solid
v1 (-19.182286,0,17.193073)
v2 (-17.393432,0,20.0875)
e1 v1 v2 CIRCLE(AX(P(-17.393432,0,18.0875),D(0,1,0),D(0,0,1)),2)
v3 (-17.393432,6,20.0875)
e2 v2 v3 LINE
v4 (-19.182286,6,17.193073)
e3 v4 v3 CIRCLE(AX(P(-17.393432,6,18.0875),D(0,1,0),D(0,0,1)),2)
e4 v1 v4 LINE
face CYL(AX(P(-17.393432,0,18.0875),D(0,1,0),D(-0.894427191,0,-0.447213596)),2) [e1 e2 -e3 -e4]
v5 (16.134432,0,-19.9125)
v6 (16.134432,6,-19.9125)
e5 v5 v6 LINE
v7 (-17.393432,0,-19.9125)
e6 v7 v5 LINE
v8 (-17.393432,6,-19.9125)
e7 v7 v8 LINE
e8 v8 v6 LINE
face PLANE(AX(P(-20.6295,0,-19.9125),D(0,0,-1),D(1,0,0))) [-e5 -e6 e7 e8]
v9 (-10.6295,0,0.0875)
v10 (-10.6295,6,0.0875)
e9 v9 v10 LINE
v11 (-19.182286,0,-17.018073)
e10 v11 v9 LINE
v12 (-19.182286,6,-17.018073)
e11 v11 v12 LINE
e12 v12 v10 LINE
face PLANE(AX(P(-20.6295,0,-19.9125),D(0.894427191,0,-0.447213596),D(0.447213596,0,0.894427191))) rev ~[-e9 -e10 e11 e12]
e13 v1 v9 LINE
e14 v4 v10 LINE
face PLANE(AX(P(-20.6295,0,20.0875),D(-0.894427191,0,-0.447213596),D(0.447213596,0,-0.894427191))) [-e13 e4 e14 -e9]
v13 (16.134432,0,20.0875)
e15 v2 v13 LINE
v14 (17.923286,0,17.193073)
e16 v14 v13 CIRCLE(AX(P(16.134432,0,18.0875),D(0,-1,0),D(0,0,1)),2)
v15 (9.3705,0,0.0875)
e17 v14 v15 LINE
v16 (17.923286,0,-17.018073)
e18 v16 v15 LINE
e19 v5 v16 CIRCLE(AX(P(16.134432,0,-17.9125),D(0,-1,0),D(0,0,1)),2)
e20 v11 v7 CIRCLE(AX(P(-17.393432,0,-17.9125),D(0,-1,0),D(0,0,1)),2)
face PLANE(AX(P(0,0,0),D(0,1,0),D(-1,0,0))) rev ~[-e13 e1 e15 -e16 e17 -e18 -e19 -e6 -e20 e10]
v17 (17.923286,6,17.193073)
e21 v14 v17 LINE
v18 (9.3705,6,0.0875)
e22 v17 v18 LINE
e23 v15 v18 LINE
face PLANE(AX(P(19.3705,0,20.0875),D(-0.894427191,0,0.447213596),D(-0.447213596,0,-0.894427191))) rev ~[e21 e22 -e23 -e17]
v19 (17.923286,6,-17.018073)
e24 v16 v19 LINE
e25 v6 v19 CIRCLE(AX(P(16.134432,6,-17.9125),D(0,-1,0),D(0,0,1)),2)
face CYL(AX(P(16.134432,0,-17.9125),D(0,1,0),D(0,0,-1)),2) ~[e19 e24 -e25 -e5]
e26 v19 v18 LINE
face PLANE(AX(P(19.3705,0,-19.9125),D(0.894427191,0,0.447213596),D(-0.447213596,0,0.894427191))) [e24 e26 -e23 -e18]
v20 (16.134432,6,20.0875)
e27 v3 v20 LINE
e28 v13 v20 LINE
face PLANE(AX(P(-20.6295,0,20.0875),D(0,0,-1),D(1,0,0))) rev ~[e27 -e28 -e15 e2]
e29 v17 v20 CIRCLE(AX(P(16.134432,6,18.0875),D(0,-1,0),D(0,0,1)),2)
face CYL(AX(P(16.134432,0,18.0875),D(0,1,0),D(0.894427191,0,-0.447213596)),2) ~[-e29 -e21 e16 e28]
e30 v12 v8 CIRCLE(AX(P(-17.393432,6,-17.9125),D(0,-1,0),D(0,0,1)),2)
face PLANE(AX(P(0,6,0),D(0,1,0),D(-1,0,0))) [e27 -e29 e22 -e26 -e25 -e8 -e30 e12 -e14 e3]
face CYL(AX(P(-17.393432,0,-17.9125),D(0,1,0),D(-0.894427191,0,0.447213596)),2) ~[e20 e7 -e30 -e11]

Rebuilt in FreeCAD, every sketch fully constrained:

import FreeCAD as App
import Part
import Sketcher
from FreeCAD import Vector


def edges_at(feature, points):
    """Names of the edges that pass closest to the given points."""
    edges = feature.Shape.Edges
    near = lambda p: min(range(len(edges)), key=lambda i: edges[i].distToShape(Part.Vertex(*p))[0])
    return sorted({f"Edge{near(p) + 1}" for p in points})

doc = App.newDocument("Part")
body = doc.addObject("PartDesign::Body", "Body")

sketch1 = body.newObject("Sketcher::SketchObject", "Sketch")
sketch1.AttachmentSupport = (doc.getObject("XZ_Plane"), [""])
sketch1.MapMode = "FlatFace"
sketch1.addGeometry(Part.LineSegment(Vector(-11, 0, 0), Vector(-21, 20, 0)), False)
sketch1.addGeometry(Part.LineSegment(Vector(-21, 20, 0), Vector(19, 20, 0)), False)
sketch1.addGeometry(Part.LineSegment(Vector(19, 20, 0), Vector(9, 0, 0)), False)
sketch1.addGeometry(Part.LineSegment(Vector(9, 0, 0), Vector(19, -20, 0)), False)
sketch1.addGeometry(Part.LineSegment(Vector(19, -20, 0), Vector(-21, -20, 0)), False)
sketch1.addGeometry(Part.LineSegment(Vector(-21, -20, 0), Vector(-11, 0, 0)), False)
sketch1.addConstraint(Sketcher.Constraint("Coincident", 0, 2, 1, 1))
sketch1.addConstraint(Sketcher.Constraint("Coincident", 1, 2, 2, 1))
sketch1.addConstraint(Sketcher.Constraint("Coincident", 2, 2, 3, 1))
sketch1.addConstraint(Sketcher.Constraint("Coincident", 3, 2, 4, 1))
sketch1.addConstraint(Sketcher.Constraint("Coincident", 4, 2, 5, 1))
sketch1.addConstraint(Sketcher.Constraint("Coincident", 5, 2, 0, 1))
sketch1.addConstraint(Sketcher.Constraint("Horizontal", 1))
sketch1.addConstraint(Sketcher.Constraint("Horizontal", 4))
sketch1.addConstraint(Sketcher.Constraint("Parallel", 0, 3))
sketch1.addConstraint(Sketcher.Constraint("Parallel", 2, 5))
sketch1.addConstraint(Sketcher.Constraint("Horizontal", 2, 2, 5, 2))
sketch1.addConstraint(Sketcher.Constraint("Vertical", 1, 2, 3, 2))
sketch1.addConstraint(Sketcher.Constraint("Vertical", 0, 2, 4, 2))
sketch1.addConstraint(Sketcher.Constraint("DistanceX", 1, 1, 1, 2, 40.0))
sketch1.addConstraint(Sketcher.Constraint("DistanceX", 2, 2, 1, 2, 10.0))
sketch1.addConstraint(Sketcher.Constraint("DistanceY", 2, 2, 1, 2, 20.0))
sketch1.addConstraint(Sketcher.Constraint("DistanceX", 0, 2, -1, 1, 20.6295))
sketch1.addConstraint(Sketcher.Constraint("DistanceY", -1, 1, 0, 2, 20.0875))
pad1 = body.newObject("PartDesign::Pad", "Pad")
pad1.Profile = sketch1
pad1.Length = 6
pad1.Reversed = True
doc.recompute()

fillet = body.newObject("PartDesign::Fillet", "Fillet")
fillet.Base = (pad1, edges_at(pad1, [
    (-20.63, 3, 20.087),
    (19.37, 3, 20.087),
    (19.37, 3, -19.913),
    (-20.63, 3, -19.913),
]))
fillet.Radius = 2

doc.recompute()
